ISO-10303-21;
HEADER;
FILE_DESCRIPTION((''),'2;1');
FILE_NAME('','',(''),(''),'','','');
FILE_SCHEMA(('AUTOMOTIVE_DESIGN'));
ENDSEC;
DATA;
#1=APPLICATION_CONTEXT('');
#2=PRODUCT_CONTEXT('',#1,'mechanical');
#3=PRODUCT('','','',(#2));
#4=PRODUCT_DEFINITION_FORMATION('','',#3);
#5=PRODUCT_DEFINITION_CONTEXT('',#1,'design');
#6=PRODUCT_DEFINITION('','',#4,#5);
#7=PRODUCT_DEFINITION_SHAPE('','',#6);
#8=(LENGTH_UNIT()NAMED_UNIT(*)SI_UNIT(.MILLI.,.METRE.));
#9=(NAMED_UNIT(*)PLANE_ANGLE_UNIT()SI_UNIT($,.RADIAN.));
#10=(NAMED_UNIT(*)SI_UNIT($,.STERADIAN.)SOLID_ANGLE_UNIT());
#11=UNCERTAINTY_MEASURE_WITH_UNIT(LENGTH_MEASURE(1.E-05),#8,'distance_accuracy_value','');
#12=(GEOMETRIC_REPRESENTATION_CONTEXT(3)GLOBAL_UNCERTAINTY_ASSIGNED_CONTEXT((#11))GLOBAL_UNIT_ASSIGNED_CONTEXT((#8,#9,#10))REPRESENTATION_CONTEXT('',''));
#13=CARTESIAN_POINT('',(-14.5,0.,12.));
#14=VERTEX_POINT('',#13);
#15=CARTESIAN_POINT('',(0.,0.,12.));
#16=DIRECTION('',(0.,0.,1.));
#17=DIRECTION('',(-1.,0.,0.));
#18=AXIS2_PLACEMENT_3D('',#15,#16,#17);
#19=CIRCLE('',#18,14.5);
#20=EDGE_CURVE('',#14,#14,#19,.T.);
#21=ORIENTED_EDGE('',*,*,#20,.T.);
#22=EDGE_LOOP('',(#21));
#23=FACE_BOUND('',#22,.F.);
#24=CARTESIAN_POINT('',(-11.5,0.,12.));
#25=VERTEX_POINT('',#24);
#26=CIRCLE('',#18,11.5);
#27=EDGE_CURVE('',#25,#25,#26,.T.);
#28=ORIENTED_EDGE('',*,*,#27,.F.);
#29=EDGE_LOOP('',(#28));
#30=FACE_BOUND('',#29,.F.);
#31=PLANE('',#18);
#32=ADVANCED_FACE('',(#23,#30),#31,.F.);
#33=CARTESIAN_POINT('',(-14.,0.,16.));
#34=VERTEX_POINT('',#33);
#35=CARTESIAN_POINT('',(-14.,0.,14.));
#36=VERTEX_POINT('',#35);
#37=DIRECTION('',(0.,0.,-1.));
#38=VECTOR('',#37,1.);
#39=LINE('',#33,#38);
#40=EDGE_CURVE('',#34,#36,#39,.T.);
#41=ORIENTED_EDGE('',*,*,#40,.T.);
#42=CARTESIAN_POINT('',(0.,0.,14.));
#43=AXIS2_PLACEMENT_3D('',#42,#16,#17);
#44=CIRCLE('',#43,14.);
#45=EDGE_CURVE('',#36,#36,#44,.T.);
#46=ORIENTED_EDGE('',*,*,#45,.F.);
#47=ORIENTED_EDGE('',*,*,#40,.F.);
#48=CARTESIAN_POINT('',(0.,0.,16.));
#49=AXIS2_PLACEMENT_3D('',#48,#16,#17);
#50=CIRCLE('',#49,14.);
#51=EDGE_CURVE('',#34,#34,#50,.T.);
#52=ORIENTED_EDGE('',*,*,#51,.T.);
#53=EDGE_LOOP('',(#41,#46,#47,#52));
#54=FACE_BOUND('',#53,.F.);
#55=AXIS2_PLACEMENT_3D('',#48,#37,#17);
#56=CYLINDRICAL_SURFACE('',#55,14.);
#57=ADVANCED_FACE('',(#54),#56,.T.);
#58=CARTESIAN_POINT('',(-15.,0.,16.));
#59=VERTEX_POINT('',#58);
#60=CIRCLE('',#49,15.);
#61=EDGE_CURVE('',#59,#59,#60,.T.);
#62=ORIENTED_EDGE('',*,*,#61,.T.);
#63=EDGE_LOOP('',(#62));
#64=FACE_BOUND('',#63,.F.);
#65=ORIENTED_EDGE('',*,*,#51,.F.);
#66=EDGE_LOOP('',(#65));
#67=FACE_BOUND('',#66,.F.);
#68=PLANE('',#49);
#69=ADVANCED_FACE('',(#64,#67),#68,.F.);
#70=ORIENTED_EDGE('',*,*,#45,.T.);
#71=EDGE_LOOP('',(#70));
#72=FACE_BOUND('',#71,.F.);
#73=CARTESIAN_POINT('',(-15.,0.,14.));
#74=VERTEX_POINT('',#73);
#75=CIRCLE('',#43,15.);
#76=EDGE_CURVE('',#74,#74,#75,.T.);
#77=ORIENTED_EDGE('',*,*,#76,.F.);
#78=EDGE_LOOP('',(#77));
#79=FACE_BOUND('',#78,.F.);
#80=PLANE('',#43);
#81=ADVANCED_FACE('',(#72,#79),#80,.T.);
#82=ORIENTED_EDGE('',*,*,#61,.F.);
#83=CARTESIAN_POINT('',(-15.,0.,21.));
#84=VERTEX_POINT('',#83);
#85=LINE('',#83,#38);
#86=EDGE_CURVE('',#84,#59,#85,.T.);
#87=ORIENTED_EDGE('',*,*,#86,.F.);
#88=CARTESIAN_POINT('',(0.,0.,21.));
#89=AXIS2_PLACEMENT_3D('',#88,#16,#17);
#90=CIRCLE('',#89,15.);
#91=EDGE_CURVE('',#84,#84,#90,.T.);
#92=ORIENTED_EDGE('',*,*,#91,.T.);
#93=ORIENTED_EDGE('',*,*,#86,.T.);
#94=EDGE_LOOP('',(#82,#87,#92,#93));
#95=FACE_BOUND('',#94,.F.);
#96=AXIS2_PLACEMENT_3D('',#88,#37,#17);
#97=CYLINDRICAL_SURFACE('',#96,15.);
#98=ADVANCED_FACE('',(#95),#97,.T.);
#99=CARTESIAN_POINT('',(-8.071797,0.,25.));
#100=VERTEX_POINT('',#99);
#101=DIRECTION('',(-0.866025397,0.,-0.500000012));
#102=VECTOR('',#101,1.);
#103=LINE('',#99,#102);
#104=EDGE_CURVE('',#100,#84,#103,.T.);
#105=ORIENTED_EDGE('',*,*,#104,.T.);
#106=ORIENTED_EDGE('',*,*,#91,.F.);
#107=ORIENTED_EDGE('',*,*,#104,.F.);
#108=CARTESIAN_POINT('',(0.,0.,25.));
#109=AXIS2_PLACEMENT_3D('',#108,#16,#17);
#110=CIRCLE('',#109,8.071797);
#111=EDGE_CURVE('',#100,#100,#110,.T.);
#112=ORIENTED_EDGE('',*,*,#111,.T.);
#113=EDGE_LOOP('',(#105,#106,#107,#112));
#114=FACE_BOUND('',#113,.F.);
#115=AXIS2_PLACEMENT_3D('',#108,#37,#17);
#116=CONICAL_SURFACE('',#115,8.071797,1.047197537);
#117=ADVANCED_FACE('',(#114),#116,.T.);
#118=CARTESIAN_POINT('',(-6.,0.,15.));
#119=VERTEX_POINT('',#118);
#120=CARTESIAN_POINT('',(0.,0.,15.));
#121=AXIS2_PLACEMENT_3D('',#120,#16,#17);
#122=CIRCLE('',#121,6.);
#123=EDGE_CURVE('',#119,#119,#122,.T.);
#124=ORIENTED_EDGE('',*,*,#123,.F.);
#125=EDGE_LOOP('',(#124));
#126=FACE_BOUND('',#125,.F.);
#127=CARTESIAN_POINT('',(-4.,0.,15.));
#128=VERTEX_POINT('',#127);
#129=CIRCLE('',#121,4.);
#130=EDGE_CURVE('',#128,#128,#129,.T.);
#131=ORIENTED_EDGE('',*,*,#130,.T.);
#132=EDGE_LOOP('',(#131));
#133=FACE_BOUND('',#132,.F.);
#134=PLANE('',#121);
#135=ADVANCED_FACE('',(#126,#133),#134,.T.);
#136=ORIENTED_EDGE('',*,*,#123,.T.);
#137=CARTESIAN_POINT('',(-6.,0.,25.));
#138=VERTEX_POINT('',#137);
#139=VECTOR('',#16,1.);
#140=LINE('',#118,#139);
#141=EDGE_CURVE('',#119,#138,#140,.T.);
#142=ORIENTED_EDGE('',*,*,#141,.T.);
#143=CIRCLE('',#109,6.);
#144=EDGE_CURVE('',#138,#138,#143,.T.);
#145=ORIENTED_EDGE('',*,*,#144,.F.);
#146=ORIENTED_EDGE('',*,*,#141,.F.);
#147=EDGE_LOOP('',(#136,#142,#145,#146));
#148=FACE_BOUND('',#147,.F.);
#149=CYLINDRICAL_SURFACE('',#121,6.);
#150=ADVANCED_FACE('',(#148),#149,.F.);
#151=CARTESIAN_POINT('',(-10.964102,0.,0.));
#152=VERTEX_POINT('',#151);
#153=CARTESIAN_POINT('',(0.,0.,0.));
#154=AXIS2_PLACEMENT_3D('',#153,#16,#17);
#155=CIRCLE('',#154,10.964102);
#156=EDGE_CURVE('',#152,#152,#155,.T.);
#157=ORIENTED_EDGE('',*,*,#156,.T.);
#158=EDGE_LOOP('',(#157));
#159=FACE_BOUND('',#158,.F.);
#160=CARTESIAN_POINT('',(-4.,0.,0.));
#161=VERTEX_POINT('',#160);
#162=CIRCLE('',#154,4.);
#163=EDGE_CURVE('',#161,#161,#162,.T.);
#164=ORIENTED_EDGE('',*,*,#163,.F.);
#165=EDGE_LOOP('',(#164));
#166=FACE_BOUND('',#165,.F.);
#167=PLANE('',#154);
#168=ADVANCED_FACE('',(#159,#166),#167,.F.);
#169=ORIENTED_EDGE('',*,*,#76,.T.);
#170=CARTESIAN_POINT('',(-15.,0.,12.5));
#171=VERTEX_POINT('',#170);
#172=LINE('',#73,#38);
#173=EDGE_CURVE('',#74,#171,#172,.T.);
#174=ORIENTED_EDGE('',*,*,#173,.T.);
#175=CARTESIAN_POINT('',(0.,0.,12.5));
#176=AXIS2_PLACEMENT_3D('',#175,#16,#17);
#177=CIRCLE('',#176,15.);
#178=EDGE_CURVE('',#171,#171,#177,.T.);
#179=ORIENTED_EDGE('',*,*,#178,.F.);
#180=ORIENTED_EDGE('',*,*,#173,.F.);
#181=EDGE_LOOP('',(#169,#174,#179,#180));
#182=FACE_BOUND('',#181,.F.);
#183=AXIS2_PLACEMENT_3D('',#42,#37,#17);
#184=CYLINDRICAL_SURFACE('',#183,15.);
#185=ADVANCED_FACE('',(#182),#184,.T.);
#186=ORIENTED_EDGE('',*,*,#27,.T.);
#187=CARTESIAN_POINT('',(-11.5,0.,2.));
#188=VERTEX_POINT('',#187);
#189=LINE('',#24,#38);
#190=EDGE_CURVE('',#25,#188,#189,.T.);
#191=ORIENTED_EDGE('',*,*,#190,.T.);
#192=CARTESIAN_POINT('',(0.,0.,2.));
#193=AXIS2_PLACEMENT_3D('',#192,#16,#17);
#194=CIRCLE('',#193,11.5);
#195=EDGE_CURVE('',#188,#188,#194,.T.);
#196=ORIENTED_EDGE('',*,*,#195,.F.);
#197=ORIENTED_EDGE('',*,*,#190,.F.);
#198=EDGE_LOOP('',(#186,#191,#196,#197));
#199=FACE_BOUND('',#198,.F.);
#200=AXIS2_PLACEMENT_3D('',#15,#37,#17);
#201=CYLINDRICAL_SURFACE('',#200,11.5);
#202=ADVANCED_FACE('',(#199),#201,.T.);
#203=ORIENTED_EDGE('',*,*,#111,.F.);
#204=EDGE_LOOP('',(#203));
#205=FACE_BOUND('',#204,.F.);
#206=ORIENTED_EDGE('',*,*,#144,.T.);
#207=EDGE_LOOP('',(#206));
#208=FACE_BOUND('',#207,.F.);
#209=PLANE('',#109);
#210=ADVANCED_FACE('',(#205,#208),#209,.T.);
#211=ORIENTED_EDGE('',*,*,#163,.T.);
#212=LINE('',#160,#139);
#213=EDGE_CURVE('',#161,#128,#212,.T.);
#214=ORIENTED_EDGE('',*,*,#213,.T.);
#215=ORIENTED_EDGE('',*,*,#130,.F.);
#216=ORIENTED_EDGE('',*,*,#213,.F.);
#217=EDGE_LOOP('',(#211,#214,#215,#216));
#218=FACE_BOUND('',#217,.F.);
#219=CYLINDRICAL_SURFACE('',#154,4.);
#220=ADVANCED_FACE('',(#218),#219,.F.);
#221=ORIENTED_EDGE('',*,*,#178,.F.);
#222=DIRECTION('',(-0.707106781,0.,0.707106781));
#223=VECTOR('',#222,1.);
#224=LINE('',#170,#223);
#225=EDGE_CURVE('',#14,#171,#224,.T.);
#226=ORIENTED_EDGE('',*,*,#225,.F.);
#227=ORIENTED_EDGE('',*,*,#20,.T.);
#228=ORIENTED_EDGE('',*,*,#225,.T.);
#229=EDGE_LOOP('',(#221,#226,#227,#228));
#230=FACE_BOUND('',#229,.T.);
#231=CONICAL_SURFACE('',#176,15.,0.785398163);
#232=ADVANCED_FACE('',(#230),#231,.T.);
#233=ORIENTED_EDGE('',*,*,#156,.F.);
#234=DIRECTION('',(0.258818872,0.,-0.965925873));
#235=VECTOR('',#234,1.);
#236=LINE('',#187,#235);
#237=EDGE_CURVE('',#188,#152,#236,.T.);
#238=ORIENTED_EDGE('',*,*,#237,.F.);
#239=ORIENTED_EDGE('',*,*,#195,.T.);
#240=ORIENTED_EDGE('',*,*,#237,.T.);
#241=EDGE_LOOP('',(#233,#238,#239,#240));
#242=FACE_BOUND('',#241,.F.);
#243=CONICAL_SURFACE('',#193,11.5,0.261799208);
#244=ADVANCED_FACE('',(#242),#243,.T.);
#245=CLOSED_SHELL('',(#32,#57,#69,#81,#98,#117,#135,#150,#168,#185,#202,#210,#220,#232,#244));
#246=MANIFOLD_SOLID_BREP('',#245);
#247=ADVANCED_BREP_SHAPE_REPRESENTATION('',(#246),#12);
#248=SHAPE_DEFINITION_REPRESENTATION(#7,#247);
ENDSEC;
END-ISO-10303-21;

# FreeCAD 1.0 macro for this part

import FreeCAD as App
import Part
import Sketcher
Q = App.Units.Quantity


def edges_at(feature, points):
    """Names of the edges that pass closest to the given points."""
    edges = feature.Shape.Edges
    near = lambda p: min(range(len(edges)), key=lambda i: edges[i].distToShape(Part.Vertex(*p))[0])
    return sorted({f"Edge{near(p) + 1}" for p in points})

doc = App.newDocument("Part")
body = doc.addObject("PartDesign::Body", "Body")

sketch1 = body.newObject("Sketcher::SketchObject", "Sketch")
sketch1.AttachmentSupport = (doc.getObject("XZ_Plane"), [""])
sketch1.MapMode = "FlatFace"
sketch1.addGeometry(Part.LineSegment(App.Vector(-6, 15, 0), App.Vector(-6, 25, 0)), False)
sketch1.addGeometry(Part.LineSegment(App.Vector(-6, 25, 0), App.Vector(-8.1, 25, 0)), False)
sketch1.addGeometry(Part.LineSegment(App.Vector(-8.1, 25, 0), App.Vector(-15, 21, 0)), False)
sketch1.addGeometry(Part.LineSegment(App.Vector(-15, 21, 0), App.Vector(-15, 16, 0)), False)
sketch1.addGeometry(Part.LineSegment(App.Vector(-15, 16, 0), App.Vector(-14, 16, 0)), False)
sketch1.addGeometry(Part.LineSegment(App.Vector(-14, 16, 0), App.Vector(-14, 14, 0)), False)
sketch1.addGeometry(Part.LineSegment(App.Vector(-14, 14, 0), App.Vector(-15, 14, 0)), False)
sketch1.addGeometry(Part.LineSegment(App.Vector(-15, 14, 0), App.Vector(-15, 12, 0)), False)
sketch1.addGeometry(Part.LineSegment(App.Vector(-15, 12, 0), App.Vector(-11.5, 12, 0)), False)
sketch1.addGeometry(Part.LineSegment(App.Vector(-11.5, 12, 0), App.Vector(-11.5, 0, 0)), False)
sketch1.addGeometry(Part.LineSegment(App.Vector(-11.5, 0, 0), App.Vector(-4, 0, 0)), False)
sketch1.addGeometry(Part.LineSegment(App.Vector(-4, 0, 0), App.Vector(-4, 15, 0)), False)
sketch1.addGeometry(Part.LineSegment(App.Vector(-4, 15, 0), App.Vector(-6, 15, 0)), False)
sketch1.addConstraint(Sketcher.Constraint("Coincident", 0, 2, 1, 1))
sketch1.addConstraint(Sketcher.Constraint("Coincident", 1, 2, 2, 1))
sketch1.addConstraint(Sketcher.Constraint("Coincident", 2, 2, 3, 1))
sketch1.addConstraint(Sketcher.Constraint("Coincident", 3, 2, 4, 1))
sketch1.addConstraint(Sketcher.Constraint("Coincident", 4, 2, 5, 1))
sketch1.addConstraint(Sketcher.Constraint("Coincident", 5, 2, 6, 1))
sketch1.addConstraint(Sketcher.Constraint("Coincident", 6, 2, 7, 1))
sketch1.addConstraint(Sketcher.Constraint("Coincident", 7, 2, 8, 1))
sketch1.addConstraint(Sketcher.Constraint("Coincident", 8, 2, 9, 1))
sketch1.addConstraint(Sketcher.Constraint("Coincident", 9, 2, 10, 1))
sketch1.addConstraint(Sketcher.Constraint("Coincident", 10, 2, 11, 1))
sketch1.addConstraint(Sketcher.Constraint("Coincident", 11, 2, 12, 1))
sketch1.addConstraint(Sketcher.Constraint("Coincident", 12, 2, 0, 1))
sketch1.addConstraint(Sketcher.Constraint("Vertical", 0))
sketch1.addConstraint(Sketcher.Constraint("Horizontal", 1))
sketch1.addConstraint(Sketcher.Constraint("Vertical", 3))
sketch1.addConstraint(Sketcher.Constraint("Horizontal", 4))
sketch1.addConstraint(Sketcher.Constraint("Vertical", 5))
sketch1.addConstraint(Sketcher.Constraint("Horizontal", 6))
sketch1.addConstraint(Sketcher.Constraint("Vertical", 7))
sketch1.addConstraint(Sketcher.Constraint("Horizontal", 8))
sketch1.addConstraint(Sketcher.Constraint("Vertical", 9))
sketch1.addConstraint(Sketcher.Constraint("Horizontal", 10))
sketch1.addConstraint(Sketcher.Constraint("Vertical", 11))
sketch1.addConstraint(Sketcher.Constraint("Horizontal", 12))
sketch1.addConstraint(Sketcher.Constraint("PointOnObject", 9, 2, -1))
sketch1.addConstraint(Sketcher.Constraint("Vertical", 3, 2, 6, 2))
sketch1.addConstraint(Sketcher.Constraint("Equal", 12, 5))
sketch1.addConstraint(Sketcher.Constraint("Equal", 5, 7))
sketch1.addConstraint(Sketcher.Constraint("DistanceX", 4, 1, 4, 2, Q("1 mm")))
sketch1.addConstraint(Sketcher.Constraint("DistanceX", 12, 2, 12, 1, Q("2 mm")))
sketch1.addConstraint(Sketcher.Constraint("DistanceY", 0, 1, 0, 2, Q("10 mm")))
sketch1.addConstraint(Sketcher.Constraint("DistanceY", 3, 2, 3, 1, Q("5 mm")))
sketch1.addConstraint(Sketcher.Constraint("DistanceY", 9, 2, 9, 1, Q("12 mm")))
sketch1.addConstraint(Sketcher.Constraint("DistanceY", 11, 1, 11, 2, Q("15 mm")))
sketch1.addConstraint(Sketcher.Constraint("Angle", 2, Q("-149.999999 deg")))
sketch1.addConstraint(Sketcher.Constraint("DistanceX", 8, 1, 8, 2, Q("3.5 mm")))
sketch1.addConstraint(Sketcher.Constraint("DistanceX", 10, 1, 10, 2, Q("7.5 mm")))
sketch1.addConstraint(Sketcher.Constraint("DistanceX", 0, 2, -1, 1, Q("6 mm")))
revolution = body.newObject("PartDesign::Revolution", "Revolution")
revolution.Profile = sketch1
revolution.ReferenceAxis = (sketch1, ["V_Axis"])
revolution.Angle = 360
doc.recompute()

chamfer = body.newObject("PartDesign::Chamfer", "Chamfer")
chamfer.Base = (revolution, edges_at(revolution, [(11.5, 0, 0)]))
chamfer.ChamferType = "Two distances"
chamfer.Size = 2
chamfer.Size2 = 0.535898
doc.recompute()

chamfer2 = body.newObject("PartDesign::Chamfer", "Chamfer001")
chamfer2.Base = (chamfer, edges_at(chamfer, [(15, 0, 12)]))
chamfer2.Size = 0.5

doc.recompute()
